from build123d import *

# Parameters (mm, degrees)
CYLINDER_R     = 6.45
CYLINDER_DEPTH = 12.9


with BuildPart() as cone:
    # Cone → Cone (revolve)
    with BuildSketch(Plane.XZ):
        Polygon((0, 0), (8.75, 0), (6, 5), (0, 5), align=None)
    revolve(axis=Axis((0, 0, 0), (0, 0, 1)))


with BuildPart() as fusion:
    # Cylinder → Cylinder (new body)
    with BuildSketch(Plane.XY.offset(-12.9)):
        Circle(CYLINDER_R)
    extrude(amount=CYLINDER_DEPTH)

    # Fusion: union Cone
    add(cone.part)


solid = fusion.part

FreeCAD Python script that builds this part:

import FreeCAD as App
import Part
import Sketcher
from FreeCAD import Vector
Q = App.Units.Quantity


def add_polygon(sketch, points):
    """Adds a closed chain of lines whose ends are joined by coincident constraints."""
    first, n = sketch.GeometryCount, len(points)
    for a, b in zip(points, points[1:] + points[:1]):
        sketch.addGeometry(Part.LineSegment(App.Vector(*a, 0), App.Vector(*b, 0)), False)
    for i in range(n):
        sketch.addConstraint(Sketcher.Constraint("Coincident", first + i, 2, first + (i + 1) % n, 1))

doc = App.newDocument("Part")
body = doc.addObject("PartDesign::Body", "Body")

sketch1 = body.newObject("Sketcher::SketchObject", "Sketch")
sketch1.AttachmentSupport = (doc.getObject("XZ_Plane"), [""])
sketch1.MapMode = "FlatFace"
add_polygon(sketch1, [(0, 0), (9, 0), (6, 5), (0, 5)])
sketch1.addConstraint(Sketcher.Constraint("Horizontal", 0))
sketch1.addConstraint(Sketcher.Constraint("Horizontal", 2))
sketch1.addConstraint(Sketcher.Constraint("Vertical", 3))
sketch1.addConstraint(Sketcher.Constraint("Coincident", 3, 2, -1, 1))
sketch1.addConstraint(Sketcher.Constraint("DistanceX", 2, 2, 2, 1, Q("6 mm")))
sketch1.addConstraint(Sketcher.Constraint("DistanceY", 3, 2, 3, 1, Q("5 mm")))
sketch1.addConstraint(Sketcher.Constraint("DistanceX", 0, 1, 0, 2, Q("8.75 mm")))
revolution = body.newObject("PartDesign::Revolution", "Revolution")
revolution.Profile = sketch1
revolution.ReferenceAxis = (sketch1, ["V_Axis"])
revolution.Angle = 360
body2 = doc.addObject("PartDesign::Body", "Body001")

sketch2 = body2.newObject("Sketcher::SketchObject", "Sketch001")
sketch2.AttachmentSupport = (doc.getObject("XY_Plane001"), [""])
sketch2.MapMode = "FlatFace"
sketch2.AttachmentOffset = App.Placement(Vector(0, 0, -12.9), App.Rotation())
sketch2.addGeometry(Part.Circle(Vector(0, 0, 0), Vector(0, 0, 1), 6), False)
sketch2.addConstraint(Sketcher.Constraint("Coincident", 0, 3, -1, 1))
sketch2.addConstraint(Sketcher.Constraint("Diameter", 0, Q("12.9 mm")))
pad1 = body2.newObject("PartDesign::Pad", "Pad")
pad1.Profile = sketch2
pad1.Length = 12.9
doc.recompute()

boolean = body2.newObject("PartDesign::Boolean", "Boolean")
boolean.Type = "Fuse"
boolean.addObjects([body])

doc.recompute()
